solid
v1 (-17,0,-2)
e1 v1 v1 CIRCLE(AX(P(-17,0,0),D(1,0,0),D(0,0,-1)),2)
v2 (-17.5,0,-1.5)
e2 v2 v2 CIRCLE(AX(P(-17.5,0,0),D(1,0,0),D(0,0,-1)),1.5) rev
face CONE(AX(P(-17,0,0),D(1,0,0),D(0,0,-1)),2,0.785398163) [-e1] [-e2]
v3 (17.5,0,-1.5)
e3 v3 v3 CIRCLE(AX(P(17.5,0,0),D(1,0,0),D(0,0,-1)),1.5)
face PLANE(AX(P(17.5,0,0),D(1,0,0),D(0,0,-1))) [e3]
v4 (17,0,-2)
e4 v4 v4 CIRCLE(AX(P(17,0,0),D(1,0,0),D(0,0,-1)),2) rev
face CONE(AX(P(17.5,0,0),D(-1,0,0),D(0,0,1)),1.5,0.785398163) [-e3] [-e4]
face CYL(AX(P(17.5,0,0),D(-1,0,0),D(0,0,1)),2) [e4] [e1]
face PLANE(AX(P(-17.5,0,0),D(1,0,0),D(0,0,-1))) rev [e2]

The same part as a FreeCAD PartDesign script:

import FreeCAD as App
import Part
import Sketcher
from FreeCAD import Vector


def edges_at(feature, points):
    """Names of the edges that pass closest to the given points."""
    edges = feature.Shape.Edges
    near = lambda p: min(range(len(edges)), key=lambda i: edges[i].distToShape(Part.Vertex(*p))[0])
    return sorted({f"Edge{near(p) + 1}" for p in points})

doc = App.newDocument("Part")
body = doc.addObject("PartDesign::Body", "Body")

# Sketch on YZ plane
sketch1 = body.newObject("Sketcher::SketchObject", "Sketch")
sketch1.AttachmentSupport = (doc.getObject("YZ_Plane"), [""])
sketch1.MapMode = "FlatFace"
sketch1.addGeometry(Part.Circle(Vector(0, 0, 0), Vector(0, 0, 1), 2), False)
sketch1.addConstraint([
    Sketcher.Constraint("Coincident", 0, 3, -1, 1),
    Sketcher.Constraint("Diameter", 0, 4.0),
])
pad1 = body.newObject("PartDesign::Pad", "Pad")
pad1.Profile = sketch1
pad1.Length = 35
pad1.Midplane = True
doc.recompute()

chamfer = body.newObject("PartDesign::Chamfer", "Chamfer")
chamfer.Base = (pad1, edges_at(pad1, [(-17.5, 0, 2), (17.5, 0, 2)]))
chamfer.Size = 0.5

doc.recompute()
